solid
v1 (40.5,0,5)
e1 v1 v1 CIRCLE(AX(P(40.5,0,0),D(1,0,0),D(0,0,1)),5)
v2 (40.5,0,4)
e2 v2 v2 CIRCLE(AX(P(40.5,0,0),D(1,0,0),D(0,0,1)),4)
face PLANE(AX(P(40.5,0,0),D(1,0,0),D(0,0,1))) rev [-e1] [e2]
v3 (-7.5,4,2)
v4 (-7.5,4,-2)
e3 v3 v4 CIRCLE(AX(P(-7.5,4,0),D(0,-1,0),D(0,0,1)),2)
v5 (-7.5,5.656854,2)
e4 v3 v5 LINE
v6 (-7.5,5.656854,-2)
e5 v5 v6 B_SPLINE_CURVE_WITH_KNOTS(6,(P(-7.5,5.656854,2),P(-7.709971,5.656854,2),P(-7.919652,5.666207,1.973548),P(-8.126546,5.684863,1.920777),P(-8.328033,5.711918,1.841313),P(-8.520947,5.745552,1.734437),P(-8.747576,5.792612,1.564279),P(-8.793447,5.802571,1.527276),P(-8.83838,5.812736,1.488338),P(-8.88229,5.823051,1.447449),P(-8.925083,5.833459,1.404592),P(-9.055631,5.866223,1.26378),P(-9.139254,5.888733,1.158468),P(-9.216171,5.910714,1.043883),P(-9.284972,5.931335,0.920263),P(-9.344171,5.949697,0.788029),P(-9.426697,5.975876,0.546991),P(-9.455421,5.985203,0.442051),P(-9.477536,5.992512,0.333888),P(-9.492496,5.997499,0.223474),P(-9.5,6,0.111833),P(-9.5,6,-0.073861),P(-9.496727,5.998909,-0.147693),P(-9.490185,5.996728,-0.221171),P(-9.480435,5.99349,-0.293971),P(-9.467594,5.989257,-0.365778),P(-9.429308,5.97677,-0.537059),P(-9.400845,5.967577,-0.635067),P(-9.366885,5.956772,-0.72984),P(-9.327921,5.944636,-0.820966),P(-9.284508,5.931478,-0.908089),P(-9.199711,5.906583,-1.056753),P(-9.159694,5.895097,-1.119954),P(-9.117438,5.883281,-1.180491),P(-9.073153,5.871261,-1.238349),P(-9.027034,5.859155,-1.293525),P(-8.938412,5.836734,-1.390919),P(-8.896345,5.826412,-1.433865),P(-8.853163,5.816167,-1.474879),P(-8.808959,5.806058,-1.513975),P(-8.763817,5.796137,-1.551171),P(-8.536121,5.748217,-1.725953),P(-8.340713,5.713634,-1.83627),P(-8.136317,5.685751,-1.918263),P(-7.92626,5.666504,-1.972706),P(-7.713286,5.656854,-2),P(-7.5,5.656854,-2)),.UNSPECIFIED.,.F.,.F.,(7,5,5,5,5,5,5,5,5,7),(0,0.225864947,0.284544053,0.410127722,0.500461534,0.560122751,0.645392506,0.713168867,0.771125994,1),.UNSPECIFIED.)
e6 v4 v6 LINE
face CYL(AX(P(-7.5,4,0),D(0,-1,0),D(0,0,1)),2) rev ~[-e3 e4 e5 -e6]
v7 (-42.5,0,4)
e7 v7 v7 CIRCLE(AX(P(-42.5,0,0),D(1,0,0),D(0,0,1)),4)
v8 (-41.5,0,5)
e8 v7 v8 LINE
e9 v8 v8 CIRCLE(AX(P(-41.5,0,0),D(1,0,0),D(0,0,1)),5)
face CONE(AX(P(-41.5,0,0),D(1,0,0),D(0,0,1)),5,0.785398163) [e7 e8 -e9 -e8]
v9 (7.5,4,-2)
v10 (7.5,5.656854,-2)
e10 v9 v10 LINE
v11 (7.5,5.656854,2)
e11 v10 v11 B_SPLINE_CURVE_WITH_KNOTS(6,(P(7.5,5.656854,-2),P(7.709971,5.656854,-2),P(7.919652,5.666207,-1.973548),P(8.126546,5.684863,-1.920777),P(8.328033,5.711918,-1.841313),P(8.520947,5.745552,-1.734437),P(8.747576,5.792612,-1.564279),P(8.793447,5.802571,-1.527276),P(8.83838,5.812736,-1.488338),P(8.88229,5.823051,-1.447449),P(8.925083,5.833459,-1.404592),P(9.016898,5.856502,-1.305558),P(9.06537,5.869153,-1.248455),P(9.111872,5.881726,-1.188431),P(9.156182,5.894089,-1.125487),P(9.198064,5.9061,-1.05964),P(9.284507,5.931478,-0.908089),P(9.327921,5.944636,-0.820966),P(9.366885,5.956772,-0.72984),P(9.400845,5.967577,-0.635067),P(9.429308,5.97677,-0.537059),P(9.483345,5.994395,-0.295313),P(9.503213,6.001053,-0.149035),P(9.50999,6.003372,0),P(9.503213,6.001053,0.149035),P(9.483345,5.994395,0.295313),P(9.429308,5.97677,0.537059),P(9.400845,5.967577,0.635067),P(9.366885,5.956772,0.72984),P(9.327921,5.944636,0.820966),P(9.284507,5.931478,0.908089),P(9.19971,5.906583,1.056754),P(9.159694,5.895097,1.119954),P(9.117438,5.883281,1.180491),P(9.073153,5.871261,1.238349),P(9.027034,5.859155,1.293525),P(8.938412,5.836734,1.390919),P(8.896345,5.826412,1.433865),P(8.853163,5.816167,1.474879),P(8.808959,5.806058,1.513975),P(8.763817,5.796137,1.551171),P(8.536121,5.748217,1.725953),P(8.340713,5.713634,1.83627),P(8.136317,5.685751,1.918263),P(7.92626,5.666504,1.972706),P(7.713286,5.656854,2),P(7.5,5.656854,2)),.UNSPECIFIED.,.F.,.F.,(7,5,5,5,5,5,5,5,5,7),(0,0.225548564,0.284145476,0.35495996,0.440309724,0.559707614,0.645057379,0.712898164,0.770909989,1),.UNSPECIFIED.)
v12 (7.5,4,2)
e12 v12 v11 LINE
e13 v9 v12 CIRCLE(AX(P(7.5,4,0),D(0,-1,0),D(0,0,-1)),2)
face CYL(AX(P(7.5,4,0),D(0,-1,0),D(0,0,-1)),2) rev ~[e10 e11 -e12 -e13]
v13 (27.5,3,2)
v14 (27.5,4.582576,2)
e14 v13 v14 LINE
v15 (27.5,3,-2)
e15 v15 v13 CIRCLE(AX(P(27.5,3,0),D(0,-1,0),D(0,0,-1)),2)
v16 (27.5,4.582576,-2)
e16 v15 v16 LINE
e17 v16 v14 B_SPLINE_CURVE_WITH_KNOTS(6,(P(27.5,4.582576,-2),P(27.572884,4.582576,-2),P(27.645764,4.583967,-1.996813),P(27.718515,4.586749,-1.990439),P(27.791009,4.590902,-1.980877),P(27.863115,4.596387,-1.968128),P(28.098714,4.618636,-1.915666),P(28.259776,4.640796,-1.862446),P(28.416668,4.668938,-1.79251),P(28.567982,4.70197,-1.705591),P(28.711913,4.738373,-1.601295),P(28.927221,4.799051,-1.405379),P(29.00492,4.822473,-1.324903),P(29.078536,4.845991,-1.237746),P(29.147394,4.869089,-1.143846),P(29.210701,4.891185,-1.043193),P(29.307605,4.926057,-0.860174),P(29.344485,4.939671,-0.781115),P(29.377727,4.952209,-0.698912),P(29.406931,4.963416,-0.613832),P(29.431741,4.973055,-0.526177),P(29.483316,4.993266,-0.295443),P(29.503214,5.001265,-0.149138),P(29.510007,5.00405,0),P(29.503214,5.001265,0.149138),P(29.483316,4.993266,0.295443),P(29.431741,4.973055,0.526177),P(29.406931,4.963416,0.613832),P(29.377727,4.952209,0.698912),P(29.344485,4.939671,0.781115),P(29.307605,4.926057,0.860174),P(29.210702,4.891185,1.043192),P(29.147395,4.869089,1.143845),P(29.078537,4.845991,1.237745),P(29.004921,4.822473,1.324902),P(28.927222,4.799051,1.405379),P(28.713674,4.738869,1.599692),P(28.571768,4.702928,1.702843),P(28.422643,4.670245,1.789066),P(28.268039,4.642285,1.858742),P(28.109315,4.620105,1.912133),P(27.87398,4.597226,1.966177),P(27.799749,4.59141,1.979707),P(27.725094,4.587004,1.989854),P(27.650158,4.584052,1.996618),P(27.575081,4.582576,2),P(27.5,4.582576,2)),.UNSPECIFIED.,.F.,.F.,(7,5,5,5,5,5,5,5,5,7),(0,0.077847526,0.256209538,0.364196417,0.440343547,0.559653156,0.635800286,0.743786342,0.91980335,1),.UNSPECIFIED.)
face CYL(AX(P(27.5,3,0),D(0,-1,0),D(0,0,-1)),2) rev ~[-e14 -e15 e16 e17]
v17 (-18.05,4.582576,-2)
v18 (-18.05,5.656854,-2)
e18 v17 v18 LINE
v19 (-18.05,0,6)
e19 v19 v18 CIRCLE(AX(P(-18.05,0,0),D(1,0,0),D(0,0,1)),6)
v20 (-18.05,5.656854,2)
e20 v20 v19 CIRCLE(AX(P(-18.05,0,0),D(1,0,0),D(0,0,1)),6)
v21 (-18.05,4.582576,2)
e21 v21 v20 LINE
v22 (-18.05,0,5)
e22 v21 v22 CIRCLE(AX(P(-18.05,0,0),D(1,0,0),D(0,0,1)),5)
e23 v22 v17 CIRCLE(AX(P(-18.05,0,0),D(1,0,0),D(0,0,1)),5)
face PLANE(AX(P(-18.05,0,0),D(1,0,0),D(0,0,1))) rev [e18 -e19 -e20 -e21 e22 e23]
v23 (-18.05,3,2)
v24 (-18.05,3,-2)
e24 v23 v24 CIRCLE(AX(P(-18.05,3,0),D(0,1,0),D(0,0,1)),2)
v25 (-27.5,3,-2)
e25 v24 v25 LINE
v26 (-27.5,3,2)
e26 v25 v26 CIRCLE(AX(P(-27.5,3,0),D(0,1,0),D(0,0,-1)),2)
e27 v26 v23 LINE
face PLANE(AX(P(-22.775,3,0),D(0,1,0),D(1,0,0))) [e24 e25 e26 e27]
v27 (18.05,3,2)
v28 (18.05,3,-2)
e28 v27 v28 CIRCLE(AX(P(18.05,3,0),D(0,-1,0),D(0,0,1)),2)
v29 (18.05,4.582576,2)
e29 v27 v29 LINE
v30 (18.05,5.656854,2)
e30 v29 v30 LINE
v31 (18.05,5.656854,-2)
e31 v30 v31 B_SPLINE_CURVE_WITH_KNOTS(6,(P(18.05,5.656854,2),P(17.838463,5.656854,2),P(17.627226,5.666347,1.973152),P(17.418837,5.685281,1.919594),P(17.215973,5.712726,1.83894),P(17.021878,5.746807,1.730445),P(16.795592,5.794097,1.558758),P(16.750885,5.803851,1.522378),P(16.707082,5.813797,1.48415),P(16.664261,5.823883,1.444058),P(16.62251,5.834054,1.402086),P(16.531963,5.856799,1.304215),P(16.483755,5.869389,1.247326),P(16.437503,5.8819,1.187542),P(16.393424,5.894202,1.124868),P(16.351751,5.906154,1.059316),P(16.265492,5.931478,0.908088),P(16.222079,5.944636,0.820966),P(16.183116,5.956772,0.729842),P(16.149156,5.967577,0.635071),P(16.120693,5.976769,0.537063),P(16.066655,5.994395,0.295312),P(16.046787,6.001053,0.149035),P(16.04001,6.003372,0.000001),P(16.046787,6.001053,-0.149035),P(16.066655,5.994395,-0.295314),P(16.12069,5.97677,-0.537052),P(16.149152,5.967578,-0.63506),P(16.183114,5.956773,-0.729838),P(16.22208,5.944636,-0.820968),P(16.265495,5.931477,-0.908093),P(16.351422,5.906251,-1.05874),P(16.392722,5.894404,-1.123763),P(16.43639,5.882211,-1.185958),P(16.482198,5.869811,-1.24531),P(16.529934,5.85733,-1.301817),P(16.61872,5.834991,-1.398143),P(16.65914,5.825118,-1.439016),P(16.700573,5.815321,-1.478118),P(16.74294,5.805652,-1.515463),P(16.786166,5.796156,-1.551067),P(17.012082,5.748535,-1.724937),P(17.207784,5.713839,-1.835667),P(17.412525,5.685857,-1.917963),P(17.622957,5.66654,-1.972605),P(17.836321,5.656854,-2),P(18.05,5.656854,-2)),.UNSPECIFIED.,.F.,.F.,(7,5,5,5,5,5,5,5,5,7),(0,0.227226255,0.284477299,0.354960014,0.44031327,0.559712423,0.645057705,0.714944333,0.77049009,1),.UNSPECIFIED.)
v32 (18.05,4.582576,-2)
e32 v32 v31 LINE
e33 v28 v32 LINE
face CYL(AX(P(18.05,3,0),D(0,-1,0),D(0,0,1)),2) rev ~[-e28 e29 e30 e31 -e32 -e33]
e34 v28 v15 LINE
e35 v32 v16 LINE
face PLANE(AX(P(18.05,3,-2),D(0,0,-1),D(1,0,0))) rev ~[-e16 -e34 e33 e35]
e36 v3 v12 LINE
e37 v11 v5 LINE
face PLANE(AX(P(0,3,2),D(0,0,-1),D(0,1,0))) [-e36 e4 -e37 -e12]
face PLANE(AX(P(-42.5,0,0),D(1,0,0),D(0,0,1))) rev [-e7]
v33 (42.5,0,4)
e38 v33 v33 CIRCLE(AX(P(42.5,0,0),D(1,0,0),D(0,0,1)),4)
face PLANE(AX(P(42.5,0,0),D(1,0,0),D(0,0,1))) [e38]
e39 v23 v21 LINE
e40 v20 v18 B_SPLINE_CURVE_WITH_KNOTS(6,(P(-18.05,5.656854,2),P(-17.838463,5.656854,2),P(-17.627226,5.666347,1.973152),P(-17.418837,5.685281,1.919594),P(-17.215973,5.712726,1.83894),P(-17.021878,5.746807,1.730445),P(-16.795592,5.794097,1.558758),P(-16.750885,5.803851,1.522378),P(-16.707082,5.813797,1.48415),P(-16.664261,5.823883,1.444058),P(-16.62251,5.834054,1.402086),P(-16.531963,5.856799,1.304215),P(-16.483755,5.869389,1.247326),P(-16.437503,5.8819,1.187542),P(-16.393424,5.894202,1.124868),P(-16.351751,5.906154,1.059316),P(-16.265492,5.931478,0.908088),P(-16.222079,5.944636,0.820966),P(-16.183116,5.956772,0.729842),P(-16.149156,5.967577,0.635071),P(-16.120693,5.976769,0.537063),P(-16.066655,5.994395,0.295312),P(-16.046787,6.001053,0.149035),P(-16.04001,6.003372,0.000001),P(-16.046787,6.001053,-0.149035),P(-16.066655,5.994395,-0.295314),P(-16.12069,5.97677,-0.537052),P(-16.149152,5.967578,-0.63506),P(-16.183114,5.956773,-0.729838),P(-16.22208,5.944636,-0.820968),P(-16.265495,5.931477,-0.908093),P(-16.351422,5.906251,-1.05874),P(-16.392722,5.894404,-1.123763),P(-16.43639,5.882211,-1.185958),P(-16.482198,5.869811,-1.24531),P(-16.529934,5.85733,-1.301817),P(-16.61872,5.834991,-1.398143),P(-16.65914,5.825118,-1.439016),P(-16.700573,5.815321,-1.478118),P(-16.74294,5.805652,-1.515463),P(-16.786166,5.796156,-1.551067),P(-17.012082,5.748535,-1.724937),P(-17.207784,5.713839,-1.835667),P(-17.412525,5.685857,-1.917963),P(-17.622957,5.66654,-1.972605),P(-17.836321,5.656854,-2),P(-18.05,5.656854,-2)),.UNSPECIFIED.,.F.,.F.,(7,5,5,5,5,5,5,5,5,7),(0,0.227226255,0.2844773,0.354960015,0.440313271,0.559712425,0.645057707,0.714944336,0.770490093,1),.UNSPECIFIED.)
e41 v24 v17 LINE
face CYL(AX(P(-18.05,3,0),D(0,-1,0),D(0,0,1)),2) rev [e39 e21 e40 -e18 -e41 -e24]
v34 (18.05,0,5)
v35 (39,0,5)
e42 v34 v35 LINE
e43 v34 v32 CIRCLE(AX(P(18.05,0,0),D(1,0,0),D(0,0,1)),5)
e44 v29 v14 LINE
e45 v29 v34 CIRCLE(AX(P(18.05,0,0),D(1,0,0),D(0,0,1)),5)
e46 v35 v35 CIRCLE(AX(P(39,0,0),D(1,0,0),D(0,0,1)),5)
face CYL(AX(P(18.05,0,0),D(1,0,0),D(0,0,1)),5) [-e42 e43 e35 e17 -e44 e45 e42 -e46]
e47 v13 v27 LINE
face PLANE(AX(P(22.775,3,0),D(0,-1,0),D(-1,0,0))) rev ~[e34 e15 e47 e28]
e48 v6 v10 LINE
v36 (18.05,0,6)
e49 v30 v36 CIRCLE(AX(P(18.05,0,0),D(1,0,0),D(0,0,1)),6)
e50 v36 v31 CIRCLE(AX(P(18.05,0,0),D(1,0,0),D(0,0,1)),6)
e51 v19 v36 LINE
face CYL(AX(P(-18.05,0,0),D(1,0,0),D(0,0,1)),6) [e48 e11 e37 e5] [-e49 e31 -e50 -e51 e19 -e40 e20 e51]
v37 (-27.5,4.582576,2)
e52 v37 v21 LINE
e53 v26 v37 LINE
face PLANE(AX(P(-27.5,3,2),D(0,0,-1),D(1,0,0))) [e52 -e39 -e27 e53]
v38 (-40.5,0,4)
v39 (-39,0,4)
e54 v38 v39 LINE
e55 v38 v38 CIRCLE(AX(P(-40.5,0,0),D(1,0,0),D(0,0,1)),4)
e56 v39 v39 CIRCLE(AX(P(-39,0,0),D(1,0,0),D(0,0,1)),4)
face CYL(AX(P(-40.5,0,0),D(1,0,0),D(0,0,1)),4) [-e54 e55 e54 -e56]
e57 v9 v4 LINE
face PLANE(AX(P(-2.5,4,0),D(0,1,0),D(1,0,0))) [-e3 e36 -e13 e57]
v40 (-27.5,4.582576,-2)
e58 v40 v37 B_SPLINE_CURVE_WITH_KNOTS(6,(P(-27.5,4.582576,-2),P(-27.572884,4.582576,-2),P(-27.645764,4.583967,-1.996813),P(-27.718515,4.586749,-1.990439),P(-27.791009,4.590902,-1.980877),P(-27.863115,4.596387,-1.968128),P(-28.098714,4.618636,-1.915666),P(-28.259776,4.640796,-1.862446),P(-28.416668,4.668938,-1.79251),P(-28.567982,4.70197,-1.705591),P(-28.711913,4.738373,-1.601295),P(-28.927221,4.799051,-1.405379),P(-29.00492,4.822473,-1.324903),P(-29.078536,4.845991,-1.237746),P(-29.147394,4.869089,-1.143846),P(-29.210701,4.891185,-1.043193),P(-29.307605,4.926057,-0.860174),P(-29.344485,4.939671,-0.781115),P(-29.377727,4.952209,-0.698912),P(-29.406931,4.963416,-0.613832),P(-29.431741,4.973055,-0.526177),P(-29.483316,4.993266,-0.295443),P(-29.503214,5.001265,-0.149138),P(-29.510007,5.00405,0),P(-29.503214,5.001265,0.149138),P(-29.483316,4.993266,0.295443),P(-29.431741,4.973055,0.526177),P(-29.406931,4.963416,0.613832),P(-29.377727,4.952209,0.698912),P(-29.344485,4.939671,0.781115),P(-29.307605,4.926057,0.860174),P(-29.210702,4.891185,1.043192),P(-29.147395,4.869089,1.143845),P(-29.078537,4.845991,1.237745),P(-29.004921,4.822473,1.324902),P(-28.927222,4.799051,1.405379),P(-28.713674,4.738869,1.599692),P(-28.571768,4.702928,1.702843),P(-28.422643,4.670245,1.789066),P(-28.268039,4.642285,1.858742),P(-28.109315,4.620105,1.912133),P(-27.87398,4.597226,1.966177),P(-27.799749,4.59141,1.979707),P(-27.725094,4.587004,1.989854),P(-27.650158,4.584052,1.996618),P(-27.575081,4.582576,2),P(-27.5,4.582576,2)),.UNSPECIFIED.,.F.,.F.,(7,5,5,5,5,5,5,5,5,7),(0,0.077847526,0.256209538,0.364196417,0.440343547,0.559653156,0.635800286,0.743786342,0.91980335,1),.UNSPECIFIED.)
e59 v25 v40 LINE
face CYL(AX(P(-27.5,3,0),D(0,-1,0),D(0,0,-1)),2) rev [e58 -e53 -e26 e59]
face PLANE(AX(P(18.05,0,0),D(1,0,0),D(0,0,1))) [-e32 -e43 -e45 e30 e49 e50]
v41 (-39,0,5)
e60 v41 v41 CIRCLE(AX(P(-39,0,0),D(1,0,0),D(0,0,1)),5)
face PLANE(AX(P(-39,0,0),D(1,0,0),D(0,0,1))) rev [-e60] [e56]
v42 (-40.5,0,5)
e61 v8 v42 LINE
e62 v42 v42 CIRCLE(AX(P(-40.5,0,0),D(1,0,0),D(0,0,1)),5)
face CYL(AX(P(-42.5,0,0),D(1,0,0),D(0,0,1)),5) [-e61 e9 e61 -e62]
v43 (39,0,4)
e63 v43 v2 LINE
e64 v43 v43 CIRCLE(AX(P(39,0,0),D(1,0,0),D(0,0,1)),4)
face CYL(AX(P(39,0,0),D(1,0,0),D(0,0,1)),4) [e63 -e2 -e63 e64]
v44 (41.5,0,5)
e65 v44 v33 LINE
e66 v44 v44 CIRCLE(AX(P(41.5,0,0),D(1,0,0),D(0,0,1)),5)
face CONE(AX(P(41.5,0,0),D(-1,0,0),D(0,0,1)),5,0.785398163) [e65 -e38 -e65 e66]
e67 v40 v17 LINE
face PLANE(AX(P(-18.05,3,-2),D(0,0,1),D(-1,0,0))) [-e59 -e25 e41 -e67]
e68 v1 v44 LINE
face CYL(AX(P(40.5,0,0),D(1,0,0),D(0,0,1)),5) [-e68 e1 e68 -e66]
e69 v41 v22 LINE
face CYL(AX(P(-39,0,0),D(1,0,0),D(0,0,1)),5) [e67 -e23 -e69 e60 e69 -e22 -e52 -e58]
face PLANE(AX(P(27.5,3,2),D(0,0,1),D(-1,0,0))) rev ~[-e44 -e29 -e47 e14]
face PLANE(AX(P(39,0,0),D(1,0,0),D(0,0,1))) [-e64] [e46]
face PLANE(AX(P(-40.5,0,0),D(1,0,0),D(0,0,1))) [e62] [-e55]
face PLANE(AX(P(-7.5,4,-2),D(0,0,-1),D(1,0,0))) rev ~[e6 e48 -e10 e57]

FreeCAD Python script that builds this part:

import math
import FreeCAD as App
import Part
import Sketcher


def edges_at(feature, points):
    """Names of the edges that pass closest to the given points."""
    edges = feature.Shape.Edges
    near = lambda p: min(range(len(edges)), key=lambda i: edges[i].distToShape(Part.Vertex(*p))[0])
    return sorted({f"Edge{near(p) + 1}" for p in points})


def add_polygon(sketch, points):
    """Adds a closed chain of lines whose ends are joined by coincident constraints."""
    first, n = sketch.GeometryCount, len(points)
    for a, b in zip(points, points[1:] + points[:1]):
        sketch.addGeometry(Part.LineSegment(App.Vector(*a, 0), App.Vector(*b, 0)), False)
    for i in range(n):
        sketch.addConstraint(Sketcher.Constraint("Coincident", first + i, 2, first + (i + 1) % n, 1))

doc = App.newDocument("Part")
body = doc.addObject("PartDesign::Body", "Body")

# Sketch on XY plane
sketch1 = body.newObject("Sketcher::SketchObject", "Sketch")
sketch1.AttachmentSupport = (doc.getObject("XY_Plane"), [""])
sketch1.MapMode = "FlatFace"
add_polygon(sketch1, [(-42.5, 5), (-42.5, 0), (42.5, 0), (42.5, 5), (40.5, 5), (40.5, 4), (39, 4), (39, 5), (18.05, 5), (18.05, 6), (-18.05, 6), (-18.05, 5), (-39, 5), (-39, 4), (-40.5, 4), (-40.5, 5)])  # lines 0-15
sketch1.addConstraint(Sketcher.Constraint("Vertical", 0))
sketch1.addConstraint(Sketcher.Constraint("Horizontal", 1))
sketch1.addConstraint(Sketcher.Constraint("Vertical", 2))
sketch1.addConstraint(Sketcher.Constraint("Horizontal", 3))
sketch1.addConstraint(Sketcher.Constraint("Vertical", 4))
sketch1.addConstraint(Sketcher.Constraint("Horizontal", 5))
sketch1.addConstraint(Sketcher.Constraint("Vertical", 6))
sketch1.addConstraint(Sketcher.Constraint("Horizontal", 7))
sketch1.addConstraint(Sketcher.Constraint("Vertical", 8))
sketch1.addConstraint(Sketcher.Constraint("Horizontal", 9))
sketch1.addConstraint(Sketcher.Constraint("Vertical", 10))
sketch1.addConstraint(Sketcher.Constraint("Horizontal", 11))
sketch1.addConstraint(Sketcher.Constraint("Vertical", 12))
sketch1.addConstraint(Sketcher.Constraint("Horizontal", 13))
sketch1.addConstraint(Sketcher.Constraint("Vertical", 14))
sketch1.addConstraint(Sketcher.Constraint("Horizontal", 15))
sketch1.addConstraint(Sketcher.Constraint("Symmetric", 0, 2, 1, 2, -1, 1))
sketch1.addConstraint(Sketcher.Constraint("Symmetric", 7, 2, 10, 2, -2))
sketch1.addConstraint(Sketcher.Constraint("Symmetric", 5, 2, 12, 2, -2))
sketch1.addConstraint(Sketcher.Constraint("Symmetric", 3, 2, 14, 2, -2))
sketch1.addConstraint(Sketcher.Constraint("Horizontal", 3, 2, 6, 2))
sketch1.addConstraint(Sketcher.Constraint("Equal", 6, 8))
sketch1.addConstraint(Sketcher.Constraint("DistanceX", 1, 1, 1, 2, 85.0))
sketch1.addConstraint(Sketcher.Constraint("DistanceX", 3, 2, 3, 1, 2.0))
sketch1.addConstraint(Sketcher.Constraint("DistanceY", 0, 2, 0, 1, 5.0))
sketch1.addConstraint(Sketcher.Constraint("DistanceY", 4, 2, 4, 1, 1.0))
sketch1.addConstraint(Sketcher.Constraint("DistanceX", 5, 2, 5, 1, 1.5))
sketch1.addConstraint(Sketcher.Constraint("DistanceX", 9, 2, 9, 1, 36.1))
revolution = body.newObject("PartDesign::Revolution", "Revolution")
revolution.Profile = sketch1
revolution.ReferenceAxis = (sketch1, ["H_Axis"])
revolution.Angle = 360
doc.recompute()

chamfer = body.newObject("PartDesign::Chamfer", "Chamfer")
chamfer.Base = (revolution, edges_at(revolution, [(-42.5, 0, -5), (42.5, 0, -5)]))
chamfer.Size = 1

# Sketch on YZ plane
sketch2 = body.newObject("Sketcher::SketchObject", "Sketch001")
sketch2.AttachmentSupport = (doc.getObject("YZ_Plane"), [""])
sketch2.MapMode = "FlatFace"
add_polygon(sketch2, [(7, 2), (3, 2), (3, -2), (7, -2)])  # lines 0-3
sketch2.addConstraint(Sketcher.Constraint("Horizontal", 0))
sketch2.addConstraint(Sketcher.Constraint("Vertical", 1))
sketch2.addConstraint(Sketcher.Constraint("Horizontal", 2))
sketch2.addConstraint(Sketcher.Constraint("Vertical", 3))
sketch2.addConstraint(Sketcher.Constraint("Equal", 2, 1))
sketch2.addConstraint(Sketcher.Constraint("DistanceX", 0, 2, 0, 1, 4.0))
sketch2.addConstraint(Sketcher.Constraint("DistanceX", -1, 1, 0, 2, 3.0))
sketch2.addConstraint(Sketcher.Constraint("DistanceY", -1, 1, 0, 2, 2.0))
pocket1 = body.newObject("PartDesign::Pocket", "Pocket")
pocket1.Profile = sketch2
pocket1.Length = 5

# Sketch on XZ plane
sketch3 = body.newObject("Sketcher::SketchObject", "Sketch002")
sketch3.AttachmentSupport = (doc.getObject("XZ_Plane"), [""])
sketch3.MapMode = "FlatFace"
sketch3.AttachmentOffset = App.Placement(App.Vector(0, 0, -3), App.Rotation())
sketch3.addGeometry(Part.LineSegment(App.Vector(18.05, 2, 0), App.Vector(27.5, 2, 0)), False)
sketch3.addGeometry(Part.ArcOfCircle(Part.Circle(App.Vector(27.5, 0, 0), App.Vector(0, 0, 1), 2), math.radians(-90), math.radians(90)), False)
sketch3.addGeometry(Part.LineSegment(App.Vector(27.5, -2, 0), App.Vector(18.05, -2, 0)), False)
sketch3.addGeometry(Part.ArcOfCircle(Part.Circle(App.Vector(18.05, 0, 0), App.Vector(0, 0, 1), 2), math.radians(90), math.radians(270)), False)
sketch3.addGeometry(Part.LineSegment(App.Vector(-18.05, -2, 0), App.Vector(-27.5, -2, 0)), False)
sketch3.addGeometry(Part.ArcOfCircle(Part.Circle(App.Vector(-27.5, 0, 0), App.Vector(0, 0, 1), 2), math.radians(90), math.radians(270)), False)
sketch3.addGeometry(Part.LineSegment(App.Vector(-27.5, 2, 0), App.Vector(-18.05, 2, 0)), False)
sketch3.addGeometry(Part.ArcOfCircle(Part.Circle(App.Vector(-18.05, 0, 0), App.Vector(0, 0, 1), 2), math.radians(-90), math.radians(90)), False)
sketch3.addConstraint(Sketcher.Constraint("Tangent", 0, 2, 1, 2))
sketch3.addConstraint(Sketcher.Constraint("Tangent", 1, 1, 2, 1))
sketch3.addConstraint(Sketcher.Constraint("Tangent", 2, 2, 3, 2))
sketch3.addConstraint(Sketcher.Constraint("Tangent", 3, 1, 0, 1))
sketch3.addConstraint(Sketcher.Constraint("Tangent", 4, 2, 5, 2))
sketch3.addConstraint(Sketcher.Constraint("Tangent", 5, 1, 6, 1))
sketch3.addConstraint(Sketcher.Constraint("Tangent", 6, 2, 7, 2))
sketch3.addConstraint(Sketcher.Constraint("Tangent", 7, 1, 4, 1))
sketch3.addConstraint(Sketcher.Constraint("Horizontal", 0))
sketch3.addConstraint(Sketcher.Constraint("Horizontal", 2))
sketch3.addConstraint(Sketcher.Constraint("Horizontal", 4))
sketch3.addConstraint(Sketcher.Constraint("Horizontal", 6))
sketch3.addConstraint(Sketcher.Constraint("Equal", 3, 5))
sketch3.addConstraint(Sketcher.Constraint("Symmetric", 1, 3, 5, 3, -1, 1))
sketch3.addConstraint(Sketcher.Constraint("Symmetric", 3, 3, 7, 3, -2))
sketch3.addConstraint(Sketcher.Constraint("Radius", 1, 2.0))
sketch3.addConstraint(Sketcher.Constraint("DistanceX", 5, 3, 1, 3, 55.0))
sketch3.addConstraint(Sketcher.Constraint("DistanceX", 0, 1, 0, 2, 9.45))
pocket2 = body.newObject("PartDesign::Pocket", "Pocket001")
pocket2.Profile = sketch3
pocket2.Length = 10

# Sketch on XZ plane
sketch4 = body.newObject("Sketcher::SketchObject", "Sketch003")
sketch4.AttachmentSupport = (doc.getObject("XZ_Plane"), [""])
sketch4.MapMode = "FlatFace"
sketch4.AttachmentOffset = App.Placement(App.Vector(0, 0, -4), App.Rotation())
sketch4.addGeometry(Part.LineSegment(App.Vector(-7.5, 2, 0), App.Vector(7.5, 2, 0)), False)
sketch4.addGeometry(Part.ArcOfCircle(Part.Circle(App.Vector(7.5, 0, 0), App.Vector(0, 0, 1), 2), math.radians(-90), math.radians(90)), False)
sketch4.addGeometry(Part.LineSegment(App.Vector(7.5, -2, 0), App.Vector(-7.5, -2, 0)), False)
sketch4.addGeometry(Part.ArcOfCircle(Part.Circle(App.Vector(-7.5, 0, 0), App.Vector(0, 0, 1), 2), math.radians(90), math.radians(270)), False)
sketch4.addConstraint(Sketcher.Constraint("Tangent", 0, 2, 1, 2))
sketch4.addConstraint(Sketcher.Constraint("Tangent", 1, 1, 2, 1))
sketch4.addConstraint(Sketcher.Constraint("Tangent", 2, 2, 3, 2))
sketch4.addConstraint(Sketcher.Constraint("Tangent", 3, 1, 0, 1))
sketch4.addConstraint(Sketcher.Constraint("Horizontal", 0))
sketch4.addConstraint(Sketcher.Constraint("Horizontal", 2))
sketch4.addConstraint(Sketcher.Constraint("Symmetric", 1, 3, 3, 3, -1, 1))
sketch4.addConstraint(Sketcher.Constraint("Radius", 1, 2.0))
sketch4.addConstraint(Sketcher.Constraint("DistanceX", 0, 1, 0, 2, 15.0))
pocket3 = body.newObject("PartDesign::Pocket", "Pocket002")
pocket3.Profile = sketch4
pocket3.Length = 10

# Sketch on XZ plane
sketch5 = body.newObject("Sketcher::SketchObject", "Sketch004")
sketch5.AttachmentSupport = (doc.getObject("XZ_Plane"), [""])
sketch5.MapMode = "FlatFace"
sketch5.AttachmentOffset = App.Placement(App.Vector(0, 0, -4), App.Rotation())
add_polygon(sketch5, [(-5, -2), (-5, 2), (0, 2), (0, -2)])  # lines 0-3
sketch5.addConstraint(Sketcher.Constraint("Vertical", 0))
sketch5.addConstraint(Sketcher.Constraint("Horizontal", 1))
sketch5.addConstraint(Sketcher.Constraint("Vertical", 2))
sketch5.addConstraint(Sketcher.Constraint("Horizontal", 3))
sketch5.addConstraint(Sketcher.Constraint("Symmetric", 1, 2, 2, 2, -1, 1))
sketch5.addConstraint(Sketcher.Constraint("DistanceX", 1, 1, 1, 2, 5.0))
sketch5.addConstraint(Sketcher.Constraint("DistanceY", 0, 1, 0, 2, 4.0))
pad1 = body.newObject("PartDesign::Pad", "Pad")
pad1.Profile = sketch5
pad1.Type = "UpToFirst"

doc.recompute()
